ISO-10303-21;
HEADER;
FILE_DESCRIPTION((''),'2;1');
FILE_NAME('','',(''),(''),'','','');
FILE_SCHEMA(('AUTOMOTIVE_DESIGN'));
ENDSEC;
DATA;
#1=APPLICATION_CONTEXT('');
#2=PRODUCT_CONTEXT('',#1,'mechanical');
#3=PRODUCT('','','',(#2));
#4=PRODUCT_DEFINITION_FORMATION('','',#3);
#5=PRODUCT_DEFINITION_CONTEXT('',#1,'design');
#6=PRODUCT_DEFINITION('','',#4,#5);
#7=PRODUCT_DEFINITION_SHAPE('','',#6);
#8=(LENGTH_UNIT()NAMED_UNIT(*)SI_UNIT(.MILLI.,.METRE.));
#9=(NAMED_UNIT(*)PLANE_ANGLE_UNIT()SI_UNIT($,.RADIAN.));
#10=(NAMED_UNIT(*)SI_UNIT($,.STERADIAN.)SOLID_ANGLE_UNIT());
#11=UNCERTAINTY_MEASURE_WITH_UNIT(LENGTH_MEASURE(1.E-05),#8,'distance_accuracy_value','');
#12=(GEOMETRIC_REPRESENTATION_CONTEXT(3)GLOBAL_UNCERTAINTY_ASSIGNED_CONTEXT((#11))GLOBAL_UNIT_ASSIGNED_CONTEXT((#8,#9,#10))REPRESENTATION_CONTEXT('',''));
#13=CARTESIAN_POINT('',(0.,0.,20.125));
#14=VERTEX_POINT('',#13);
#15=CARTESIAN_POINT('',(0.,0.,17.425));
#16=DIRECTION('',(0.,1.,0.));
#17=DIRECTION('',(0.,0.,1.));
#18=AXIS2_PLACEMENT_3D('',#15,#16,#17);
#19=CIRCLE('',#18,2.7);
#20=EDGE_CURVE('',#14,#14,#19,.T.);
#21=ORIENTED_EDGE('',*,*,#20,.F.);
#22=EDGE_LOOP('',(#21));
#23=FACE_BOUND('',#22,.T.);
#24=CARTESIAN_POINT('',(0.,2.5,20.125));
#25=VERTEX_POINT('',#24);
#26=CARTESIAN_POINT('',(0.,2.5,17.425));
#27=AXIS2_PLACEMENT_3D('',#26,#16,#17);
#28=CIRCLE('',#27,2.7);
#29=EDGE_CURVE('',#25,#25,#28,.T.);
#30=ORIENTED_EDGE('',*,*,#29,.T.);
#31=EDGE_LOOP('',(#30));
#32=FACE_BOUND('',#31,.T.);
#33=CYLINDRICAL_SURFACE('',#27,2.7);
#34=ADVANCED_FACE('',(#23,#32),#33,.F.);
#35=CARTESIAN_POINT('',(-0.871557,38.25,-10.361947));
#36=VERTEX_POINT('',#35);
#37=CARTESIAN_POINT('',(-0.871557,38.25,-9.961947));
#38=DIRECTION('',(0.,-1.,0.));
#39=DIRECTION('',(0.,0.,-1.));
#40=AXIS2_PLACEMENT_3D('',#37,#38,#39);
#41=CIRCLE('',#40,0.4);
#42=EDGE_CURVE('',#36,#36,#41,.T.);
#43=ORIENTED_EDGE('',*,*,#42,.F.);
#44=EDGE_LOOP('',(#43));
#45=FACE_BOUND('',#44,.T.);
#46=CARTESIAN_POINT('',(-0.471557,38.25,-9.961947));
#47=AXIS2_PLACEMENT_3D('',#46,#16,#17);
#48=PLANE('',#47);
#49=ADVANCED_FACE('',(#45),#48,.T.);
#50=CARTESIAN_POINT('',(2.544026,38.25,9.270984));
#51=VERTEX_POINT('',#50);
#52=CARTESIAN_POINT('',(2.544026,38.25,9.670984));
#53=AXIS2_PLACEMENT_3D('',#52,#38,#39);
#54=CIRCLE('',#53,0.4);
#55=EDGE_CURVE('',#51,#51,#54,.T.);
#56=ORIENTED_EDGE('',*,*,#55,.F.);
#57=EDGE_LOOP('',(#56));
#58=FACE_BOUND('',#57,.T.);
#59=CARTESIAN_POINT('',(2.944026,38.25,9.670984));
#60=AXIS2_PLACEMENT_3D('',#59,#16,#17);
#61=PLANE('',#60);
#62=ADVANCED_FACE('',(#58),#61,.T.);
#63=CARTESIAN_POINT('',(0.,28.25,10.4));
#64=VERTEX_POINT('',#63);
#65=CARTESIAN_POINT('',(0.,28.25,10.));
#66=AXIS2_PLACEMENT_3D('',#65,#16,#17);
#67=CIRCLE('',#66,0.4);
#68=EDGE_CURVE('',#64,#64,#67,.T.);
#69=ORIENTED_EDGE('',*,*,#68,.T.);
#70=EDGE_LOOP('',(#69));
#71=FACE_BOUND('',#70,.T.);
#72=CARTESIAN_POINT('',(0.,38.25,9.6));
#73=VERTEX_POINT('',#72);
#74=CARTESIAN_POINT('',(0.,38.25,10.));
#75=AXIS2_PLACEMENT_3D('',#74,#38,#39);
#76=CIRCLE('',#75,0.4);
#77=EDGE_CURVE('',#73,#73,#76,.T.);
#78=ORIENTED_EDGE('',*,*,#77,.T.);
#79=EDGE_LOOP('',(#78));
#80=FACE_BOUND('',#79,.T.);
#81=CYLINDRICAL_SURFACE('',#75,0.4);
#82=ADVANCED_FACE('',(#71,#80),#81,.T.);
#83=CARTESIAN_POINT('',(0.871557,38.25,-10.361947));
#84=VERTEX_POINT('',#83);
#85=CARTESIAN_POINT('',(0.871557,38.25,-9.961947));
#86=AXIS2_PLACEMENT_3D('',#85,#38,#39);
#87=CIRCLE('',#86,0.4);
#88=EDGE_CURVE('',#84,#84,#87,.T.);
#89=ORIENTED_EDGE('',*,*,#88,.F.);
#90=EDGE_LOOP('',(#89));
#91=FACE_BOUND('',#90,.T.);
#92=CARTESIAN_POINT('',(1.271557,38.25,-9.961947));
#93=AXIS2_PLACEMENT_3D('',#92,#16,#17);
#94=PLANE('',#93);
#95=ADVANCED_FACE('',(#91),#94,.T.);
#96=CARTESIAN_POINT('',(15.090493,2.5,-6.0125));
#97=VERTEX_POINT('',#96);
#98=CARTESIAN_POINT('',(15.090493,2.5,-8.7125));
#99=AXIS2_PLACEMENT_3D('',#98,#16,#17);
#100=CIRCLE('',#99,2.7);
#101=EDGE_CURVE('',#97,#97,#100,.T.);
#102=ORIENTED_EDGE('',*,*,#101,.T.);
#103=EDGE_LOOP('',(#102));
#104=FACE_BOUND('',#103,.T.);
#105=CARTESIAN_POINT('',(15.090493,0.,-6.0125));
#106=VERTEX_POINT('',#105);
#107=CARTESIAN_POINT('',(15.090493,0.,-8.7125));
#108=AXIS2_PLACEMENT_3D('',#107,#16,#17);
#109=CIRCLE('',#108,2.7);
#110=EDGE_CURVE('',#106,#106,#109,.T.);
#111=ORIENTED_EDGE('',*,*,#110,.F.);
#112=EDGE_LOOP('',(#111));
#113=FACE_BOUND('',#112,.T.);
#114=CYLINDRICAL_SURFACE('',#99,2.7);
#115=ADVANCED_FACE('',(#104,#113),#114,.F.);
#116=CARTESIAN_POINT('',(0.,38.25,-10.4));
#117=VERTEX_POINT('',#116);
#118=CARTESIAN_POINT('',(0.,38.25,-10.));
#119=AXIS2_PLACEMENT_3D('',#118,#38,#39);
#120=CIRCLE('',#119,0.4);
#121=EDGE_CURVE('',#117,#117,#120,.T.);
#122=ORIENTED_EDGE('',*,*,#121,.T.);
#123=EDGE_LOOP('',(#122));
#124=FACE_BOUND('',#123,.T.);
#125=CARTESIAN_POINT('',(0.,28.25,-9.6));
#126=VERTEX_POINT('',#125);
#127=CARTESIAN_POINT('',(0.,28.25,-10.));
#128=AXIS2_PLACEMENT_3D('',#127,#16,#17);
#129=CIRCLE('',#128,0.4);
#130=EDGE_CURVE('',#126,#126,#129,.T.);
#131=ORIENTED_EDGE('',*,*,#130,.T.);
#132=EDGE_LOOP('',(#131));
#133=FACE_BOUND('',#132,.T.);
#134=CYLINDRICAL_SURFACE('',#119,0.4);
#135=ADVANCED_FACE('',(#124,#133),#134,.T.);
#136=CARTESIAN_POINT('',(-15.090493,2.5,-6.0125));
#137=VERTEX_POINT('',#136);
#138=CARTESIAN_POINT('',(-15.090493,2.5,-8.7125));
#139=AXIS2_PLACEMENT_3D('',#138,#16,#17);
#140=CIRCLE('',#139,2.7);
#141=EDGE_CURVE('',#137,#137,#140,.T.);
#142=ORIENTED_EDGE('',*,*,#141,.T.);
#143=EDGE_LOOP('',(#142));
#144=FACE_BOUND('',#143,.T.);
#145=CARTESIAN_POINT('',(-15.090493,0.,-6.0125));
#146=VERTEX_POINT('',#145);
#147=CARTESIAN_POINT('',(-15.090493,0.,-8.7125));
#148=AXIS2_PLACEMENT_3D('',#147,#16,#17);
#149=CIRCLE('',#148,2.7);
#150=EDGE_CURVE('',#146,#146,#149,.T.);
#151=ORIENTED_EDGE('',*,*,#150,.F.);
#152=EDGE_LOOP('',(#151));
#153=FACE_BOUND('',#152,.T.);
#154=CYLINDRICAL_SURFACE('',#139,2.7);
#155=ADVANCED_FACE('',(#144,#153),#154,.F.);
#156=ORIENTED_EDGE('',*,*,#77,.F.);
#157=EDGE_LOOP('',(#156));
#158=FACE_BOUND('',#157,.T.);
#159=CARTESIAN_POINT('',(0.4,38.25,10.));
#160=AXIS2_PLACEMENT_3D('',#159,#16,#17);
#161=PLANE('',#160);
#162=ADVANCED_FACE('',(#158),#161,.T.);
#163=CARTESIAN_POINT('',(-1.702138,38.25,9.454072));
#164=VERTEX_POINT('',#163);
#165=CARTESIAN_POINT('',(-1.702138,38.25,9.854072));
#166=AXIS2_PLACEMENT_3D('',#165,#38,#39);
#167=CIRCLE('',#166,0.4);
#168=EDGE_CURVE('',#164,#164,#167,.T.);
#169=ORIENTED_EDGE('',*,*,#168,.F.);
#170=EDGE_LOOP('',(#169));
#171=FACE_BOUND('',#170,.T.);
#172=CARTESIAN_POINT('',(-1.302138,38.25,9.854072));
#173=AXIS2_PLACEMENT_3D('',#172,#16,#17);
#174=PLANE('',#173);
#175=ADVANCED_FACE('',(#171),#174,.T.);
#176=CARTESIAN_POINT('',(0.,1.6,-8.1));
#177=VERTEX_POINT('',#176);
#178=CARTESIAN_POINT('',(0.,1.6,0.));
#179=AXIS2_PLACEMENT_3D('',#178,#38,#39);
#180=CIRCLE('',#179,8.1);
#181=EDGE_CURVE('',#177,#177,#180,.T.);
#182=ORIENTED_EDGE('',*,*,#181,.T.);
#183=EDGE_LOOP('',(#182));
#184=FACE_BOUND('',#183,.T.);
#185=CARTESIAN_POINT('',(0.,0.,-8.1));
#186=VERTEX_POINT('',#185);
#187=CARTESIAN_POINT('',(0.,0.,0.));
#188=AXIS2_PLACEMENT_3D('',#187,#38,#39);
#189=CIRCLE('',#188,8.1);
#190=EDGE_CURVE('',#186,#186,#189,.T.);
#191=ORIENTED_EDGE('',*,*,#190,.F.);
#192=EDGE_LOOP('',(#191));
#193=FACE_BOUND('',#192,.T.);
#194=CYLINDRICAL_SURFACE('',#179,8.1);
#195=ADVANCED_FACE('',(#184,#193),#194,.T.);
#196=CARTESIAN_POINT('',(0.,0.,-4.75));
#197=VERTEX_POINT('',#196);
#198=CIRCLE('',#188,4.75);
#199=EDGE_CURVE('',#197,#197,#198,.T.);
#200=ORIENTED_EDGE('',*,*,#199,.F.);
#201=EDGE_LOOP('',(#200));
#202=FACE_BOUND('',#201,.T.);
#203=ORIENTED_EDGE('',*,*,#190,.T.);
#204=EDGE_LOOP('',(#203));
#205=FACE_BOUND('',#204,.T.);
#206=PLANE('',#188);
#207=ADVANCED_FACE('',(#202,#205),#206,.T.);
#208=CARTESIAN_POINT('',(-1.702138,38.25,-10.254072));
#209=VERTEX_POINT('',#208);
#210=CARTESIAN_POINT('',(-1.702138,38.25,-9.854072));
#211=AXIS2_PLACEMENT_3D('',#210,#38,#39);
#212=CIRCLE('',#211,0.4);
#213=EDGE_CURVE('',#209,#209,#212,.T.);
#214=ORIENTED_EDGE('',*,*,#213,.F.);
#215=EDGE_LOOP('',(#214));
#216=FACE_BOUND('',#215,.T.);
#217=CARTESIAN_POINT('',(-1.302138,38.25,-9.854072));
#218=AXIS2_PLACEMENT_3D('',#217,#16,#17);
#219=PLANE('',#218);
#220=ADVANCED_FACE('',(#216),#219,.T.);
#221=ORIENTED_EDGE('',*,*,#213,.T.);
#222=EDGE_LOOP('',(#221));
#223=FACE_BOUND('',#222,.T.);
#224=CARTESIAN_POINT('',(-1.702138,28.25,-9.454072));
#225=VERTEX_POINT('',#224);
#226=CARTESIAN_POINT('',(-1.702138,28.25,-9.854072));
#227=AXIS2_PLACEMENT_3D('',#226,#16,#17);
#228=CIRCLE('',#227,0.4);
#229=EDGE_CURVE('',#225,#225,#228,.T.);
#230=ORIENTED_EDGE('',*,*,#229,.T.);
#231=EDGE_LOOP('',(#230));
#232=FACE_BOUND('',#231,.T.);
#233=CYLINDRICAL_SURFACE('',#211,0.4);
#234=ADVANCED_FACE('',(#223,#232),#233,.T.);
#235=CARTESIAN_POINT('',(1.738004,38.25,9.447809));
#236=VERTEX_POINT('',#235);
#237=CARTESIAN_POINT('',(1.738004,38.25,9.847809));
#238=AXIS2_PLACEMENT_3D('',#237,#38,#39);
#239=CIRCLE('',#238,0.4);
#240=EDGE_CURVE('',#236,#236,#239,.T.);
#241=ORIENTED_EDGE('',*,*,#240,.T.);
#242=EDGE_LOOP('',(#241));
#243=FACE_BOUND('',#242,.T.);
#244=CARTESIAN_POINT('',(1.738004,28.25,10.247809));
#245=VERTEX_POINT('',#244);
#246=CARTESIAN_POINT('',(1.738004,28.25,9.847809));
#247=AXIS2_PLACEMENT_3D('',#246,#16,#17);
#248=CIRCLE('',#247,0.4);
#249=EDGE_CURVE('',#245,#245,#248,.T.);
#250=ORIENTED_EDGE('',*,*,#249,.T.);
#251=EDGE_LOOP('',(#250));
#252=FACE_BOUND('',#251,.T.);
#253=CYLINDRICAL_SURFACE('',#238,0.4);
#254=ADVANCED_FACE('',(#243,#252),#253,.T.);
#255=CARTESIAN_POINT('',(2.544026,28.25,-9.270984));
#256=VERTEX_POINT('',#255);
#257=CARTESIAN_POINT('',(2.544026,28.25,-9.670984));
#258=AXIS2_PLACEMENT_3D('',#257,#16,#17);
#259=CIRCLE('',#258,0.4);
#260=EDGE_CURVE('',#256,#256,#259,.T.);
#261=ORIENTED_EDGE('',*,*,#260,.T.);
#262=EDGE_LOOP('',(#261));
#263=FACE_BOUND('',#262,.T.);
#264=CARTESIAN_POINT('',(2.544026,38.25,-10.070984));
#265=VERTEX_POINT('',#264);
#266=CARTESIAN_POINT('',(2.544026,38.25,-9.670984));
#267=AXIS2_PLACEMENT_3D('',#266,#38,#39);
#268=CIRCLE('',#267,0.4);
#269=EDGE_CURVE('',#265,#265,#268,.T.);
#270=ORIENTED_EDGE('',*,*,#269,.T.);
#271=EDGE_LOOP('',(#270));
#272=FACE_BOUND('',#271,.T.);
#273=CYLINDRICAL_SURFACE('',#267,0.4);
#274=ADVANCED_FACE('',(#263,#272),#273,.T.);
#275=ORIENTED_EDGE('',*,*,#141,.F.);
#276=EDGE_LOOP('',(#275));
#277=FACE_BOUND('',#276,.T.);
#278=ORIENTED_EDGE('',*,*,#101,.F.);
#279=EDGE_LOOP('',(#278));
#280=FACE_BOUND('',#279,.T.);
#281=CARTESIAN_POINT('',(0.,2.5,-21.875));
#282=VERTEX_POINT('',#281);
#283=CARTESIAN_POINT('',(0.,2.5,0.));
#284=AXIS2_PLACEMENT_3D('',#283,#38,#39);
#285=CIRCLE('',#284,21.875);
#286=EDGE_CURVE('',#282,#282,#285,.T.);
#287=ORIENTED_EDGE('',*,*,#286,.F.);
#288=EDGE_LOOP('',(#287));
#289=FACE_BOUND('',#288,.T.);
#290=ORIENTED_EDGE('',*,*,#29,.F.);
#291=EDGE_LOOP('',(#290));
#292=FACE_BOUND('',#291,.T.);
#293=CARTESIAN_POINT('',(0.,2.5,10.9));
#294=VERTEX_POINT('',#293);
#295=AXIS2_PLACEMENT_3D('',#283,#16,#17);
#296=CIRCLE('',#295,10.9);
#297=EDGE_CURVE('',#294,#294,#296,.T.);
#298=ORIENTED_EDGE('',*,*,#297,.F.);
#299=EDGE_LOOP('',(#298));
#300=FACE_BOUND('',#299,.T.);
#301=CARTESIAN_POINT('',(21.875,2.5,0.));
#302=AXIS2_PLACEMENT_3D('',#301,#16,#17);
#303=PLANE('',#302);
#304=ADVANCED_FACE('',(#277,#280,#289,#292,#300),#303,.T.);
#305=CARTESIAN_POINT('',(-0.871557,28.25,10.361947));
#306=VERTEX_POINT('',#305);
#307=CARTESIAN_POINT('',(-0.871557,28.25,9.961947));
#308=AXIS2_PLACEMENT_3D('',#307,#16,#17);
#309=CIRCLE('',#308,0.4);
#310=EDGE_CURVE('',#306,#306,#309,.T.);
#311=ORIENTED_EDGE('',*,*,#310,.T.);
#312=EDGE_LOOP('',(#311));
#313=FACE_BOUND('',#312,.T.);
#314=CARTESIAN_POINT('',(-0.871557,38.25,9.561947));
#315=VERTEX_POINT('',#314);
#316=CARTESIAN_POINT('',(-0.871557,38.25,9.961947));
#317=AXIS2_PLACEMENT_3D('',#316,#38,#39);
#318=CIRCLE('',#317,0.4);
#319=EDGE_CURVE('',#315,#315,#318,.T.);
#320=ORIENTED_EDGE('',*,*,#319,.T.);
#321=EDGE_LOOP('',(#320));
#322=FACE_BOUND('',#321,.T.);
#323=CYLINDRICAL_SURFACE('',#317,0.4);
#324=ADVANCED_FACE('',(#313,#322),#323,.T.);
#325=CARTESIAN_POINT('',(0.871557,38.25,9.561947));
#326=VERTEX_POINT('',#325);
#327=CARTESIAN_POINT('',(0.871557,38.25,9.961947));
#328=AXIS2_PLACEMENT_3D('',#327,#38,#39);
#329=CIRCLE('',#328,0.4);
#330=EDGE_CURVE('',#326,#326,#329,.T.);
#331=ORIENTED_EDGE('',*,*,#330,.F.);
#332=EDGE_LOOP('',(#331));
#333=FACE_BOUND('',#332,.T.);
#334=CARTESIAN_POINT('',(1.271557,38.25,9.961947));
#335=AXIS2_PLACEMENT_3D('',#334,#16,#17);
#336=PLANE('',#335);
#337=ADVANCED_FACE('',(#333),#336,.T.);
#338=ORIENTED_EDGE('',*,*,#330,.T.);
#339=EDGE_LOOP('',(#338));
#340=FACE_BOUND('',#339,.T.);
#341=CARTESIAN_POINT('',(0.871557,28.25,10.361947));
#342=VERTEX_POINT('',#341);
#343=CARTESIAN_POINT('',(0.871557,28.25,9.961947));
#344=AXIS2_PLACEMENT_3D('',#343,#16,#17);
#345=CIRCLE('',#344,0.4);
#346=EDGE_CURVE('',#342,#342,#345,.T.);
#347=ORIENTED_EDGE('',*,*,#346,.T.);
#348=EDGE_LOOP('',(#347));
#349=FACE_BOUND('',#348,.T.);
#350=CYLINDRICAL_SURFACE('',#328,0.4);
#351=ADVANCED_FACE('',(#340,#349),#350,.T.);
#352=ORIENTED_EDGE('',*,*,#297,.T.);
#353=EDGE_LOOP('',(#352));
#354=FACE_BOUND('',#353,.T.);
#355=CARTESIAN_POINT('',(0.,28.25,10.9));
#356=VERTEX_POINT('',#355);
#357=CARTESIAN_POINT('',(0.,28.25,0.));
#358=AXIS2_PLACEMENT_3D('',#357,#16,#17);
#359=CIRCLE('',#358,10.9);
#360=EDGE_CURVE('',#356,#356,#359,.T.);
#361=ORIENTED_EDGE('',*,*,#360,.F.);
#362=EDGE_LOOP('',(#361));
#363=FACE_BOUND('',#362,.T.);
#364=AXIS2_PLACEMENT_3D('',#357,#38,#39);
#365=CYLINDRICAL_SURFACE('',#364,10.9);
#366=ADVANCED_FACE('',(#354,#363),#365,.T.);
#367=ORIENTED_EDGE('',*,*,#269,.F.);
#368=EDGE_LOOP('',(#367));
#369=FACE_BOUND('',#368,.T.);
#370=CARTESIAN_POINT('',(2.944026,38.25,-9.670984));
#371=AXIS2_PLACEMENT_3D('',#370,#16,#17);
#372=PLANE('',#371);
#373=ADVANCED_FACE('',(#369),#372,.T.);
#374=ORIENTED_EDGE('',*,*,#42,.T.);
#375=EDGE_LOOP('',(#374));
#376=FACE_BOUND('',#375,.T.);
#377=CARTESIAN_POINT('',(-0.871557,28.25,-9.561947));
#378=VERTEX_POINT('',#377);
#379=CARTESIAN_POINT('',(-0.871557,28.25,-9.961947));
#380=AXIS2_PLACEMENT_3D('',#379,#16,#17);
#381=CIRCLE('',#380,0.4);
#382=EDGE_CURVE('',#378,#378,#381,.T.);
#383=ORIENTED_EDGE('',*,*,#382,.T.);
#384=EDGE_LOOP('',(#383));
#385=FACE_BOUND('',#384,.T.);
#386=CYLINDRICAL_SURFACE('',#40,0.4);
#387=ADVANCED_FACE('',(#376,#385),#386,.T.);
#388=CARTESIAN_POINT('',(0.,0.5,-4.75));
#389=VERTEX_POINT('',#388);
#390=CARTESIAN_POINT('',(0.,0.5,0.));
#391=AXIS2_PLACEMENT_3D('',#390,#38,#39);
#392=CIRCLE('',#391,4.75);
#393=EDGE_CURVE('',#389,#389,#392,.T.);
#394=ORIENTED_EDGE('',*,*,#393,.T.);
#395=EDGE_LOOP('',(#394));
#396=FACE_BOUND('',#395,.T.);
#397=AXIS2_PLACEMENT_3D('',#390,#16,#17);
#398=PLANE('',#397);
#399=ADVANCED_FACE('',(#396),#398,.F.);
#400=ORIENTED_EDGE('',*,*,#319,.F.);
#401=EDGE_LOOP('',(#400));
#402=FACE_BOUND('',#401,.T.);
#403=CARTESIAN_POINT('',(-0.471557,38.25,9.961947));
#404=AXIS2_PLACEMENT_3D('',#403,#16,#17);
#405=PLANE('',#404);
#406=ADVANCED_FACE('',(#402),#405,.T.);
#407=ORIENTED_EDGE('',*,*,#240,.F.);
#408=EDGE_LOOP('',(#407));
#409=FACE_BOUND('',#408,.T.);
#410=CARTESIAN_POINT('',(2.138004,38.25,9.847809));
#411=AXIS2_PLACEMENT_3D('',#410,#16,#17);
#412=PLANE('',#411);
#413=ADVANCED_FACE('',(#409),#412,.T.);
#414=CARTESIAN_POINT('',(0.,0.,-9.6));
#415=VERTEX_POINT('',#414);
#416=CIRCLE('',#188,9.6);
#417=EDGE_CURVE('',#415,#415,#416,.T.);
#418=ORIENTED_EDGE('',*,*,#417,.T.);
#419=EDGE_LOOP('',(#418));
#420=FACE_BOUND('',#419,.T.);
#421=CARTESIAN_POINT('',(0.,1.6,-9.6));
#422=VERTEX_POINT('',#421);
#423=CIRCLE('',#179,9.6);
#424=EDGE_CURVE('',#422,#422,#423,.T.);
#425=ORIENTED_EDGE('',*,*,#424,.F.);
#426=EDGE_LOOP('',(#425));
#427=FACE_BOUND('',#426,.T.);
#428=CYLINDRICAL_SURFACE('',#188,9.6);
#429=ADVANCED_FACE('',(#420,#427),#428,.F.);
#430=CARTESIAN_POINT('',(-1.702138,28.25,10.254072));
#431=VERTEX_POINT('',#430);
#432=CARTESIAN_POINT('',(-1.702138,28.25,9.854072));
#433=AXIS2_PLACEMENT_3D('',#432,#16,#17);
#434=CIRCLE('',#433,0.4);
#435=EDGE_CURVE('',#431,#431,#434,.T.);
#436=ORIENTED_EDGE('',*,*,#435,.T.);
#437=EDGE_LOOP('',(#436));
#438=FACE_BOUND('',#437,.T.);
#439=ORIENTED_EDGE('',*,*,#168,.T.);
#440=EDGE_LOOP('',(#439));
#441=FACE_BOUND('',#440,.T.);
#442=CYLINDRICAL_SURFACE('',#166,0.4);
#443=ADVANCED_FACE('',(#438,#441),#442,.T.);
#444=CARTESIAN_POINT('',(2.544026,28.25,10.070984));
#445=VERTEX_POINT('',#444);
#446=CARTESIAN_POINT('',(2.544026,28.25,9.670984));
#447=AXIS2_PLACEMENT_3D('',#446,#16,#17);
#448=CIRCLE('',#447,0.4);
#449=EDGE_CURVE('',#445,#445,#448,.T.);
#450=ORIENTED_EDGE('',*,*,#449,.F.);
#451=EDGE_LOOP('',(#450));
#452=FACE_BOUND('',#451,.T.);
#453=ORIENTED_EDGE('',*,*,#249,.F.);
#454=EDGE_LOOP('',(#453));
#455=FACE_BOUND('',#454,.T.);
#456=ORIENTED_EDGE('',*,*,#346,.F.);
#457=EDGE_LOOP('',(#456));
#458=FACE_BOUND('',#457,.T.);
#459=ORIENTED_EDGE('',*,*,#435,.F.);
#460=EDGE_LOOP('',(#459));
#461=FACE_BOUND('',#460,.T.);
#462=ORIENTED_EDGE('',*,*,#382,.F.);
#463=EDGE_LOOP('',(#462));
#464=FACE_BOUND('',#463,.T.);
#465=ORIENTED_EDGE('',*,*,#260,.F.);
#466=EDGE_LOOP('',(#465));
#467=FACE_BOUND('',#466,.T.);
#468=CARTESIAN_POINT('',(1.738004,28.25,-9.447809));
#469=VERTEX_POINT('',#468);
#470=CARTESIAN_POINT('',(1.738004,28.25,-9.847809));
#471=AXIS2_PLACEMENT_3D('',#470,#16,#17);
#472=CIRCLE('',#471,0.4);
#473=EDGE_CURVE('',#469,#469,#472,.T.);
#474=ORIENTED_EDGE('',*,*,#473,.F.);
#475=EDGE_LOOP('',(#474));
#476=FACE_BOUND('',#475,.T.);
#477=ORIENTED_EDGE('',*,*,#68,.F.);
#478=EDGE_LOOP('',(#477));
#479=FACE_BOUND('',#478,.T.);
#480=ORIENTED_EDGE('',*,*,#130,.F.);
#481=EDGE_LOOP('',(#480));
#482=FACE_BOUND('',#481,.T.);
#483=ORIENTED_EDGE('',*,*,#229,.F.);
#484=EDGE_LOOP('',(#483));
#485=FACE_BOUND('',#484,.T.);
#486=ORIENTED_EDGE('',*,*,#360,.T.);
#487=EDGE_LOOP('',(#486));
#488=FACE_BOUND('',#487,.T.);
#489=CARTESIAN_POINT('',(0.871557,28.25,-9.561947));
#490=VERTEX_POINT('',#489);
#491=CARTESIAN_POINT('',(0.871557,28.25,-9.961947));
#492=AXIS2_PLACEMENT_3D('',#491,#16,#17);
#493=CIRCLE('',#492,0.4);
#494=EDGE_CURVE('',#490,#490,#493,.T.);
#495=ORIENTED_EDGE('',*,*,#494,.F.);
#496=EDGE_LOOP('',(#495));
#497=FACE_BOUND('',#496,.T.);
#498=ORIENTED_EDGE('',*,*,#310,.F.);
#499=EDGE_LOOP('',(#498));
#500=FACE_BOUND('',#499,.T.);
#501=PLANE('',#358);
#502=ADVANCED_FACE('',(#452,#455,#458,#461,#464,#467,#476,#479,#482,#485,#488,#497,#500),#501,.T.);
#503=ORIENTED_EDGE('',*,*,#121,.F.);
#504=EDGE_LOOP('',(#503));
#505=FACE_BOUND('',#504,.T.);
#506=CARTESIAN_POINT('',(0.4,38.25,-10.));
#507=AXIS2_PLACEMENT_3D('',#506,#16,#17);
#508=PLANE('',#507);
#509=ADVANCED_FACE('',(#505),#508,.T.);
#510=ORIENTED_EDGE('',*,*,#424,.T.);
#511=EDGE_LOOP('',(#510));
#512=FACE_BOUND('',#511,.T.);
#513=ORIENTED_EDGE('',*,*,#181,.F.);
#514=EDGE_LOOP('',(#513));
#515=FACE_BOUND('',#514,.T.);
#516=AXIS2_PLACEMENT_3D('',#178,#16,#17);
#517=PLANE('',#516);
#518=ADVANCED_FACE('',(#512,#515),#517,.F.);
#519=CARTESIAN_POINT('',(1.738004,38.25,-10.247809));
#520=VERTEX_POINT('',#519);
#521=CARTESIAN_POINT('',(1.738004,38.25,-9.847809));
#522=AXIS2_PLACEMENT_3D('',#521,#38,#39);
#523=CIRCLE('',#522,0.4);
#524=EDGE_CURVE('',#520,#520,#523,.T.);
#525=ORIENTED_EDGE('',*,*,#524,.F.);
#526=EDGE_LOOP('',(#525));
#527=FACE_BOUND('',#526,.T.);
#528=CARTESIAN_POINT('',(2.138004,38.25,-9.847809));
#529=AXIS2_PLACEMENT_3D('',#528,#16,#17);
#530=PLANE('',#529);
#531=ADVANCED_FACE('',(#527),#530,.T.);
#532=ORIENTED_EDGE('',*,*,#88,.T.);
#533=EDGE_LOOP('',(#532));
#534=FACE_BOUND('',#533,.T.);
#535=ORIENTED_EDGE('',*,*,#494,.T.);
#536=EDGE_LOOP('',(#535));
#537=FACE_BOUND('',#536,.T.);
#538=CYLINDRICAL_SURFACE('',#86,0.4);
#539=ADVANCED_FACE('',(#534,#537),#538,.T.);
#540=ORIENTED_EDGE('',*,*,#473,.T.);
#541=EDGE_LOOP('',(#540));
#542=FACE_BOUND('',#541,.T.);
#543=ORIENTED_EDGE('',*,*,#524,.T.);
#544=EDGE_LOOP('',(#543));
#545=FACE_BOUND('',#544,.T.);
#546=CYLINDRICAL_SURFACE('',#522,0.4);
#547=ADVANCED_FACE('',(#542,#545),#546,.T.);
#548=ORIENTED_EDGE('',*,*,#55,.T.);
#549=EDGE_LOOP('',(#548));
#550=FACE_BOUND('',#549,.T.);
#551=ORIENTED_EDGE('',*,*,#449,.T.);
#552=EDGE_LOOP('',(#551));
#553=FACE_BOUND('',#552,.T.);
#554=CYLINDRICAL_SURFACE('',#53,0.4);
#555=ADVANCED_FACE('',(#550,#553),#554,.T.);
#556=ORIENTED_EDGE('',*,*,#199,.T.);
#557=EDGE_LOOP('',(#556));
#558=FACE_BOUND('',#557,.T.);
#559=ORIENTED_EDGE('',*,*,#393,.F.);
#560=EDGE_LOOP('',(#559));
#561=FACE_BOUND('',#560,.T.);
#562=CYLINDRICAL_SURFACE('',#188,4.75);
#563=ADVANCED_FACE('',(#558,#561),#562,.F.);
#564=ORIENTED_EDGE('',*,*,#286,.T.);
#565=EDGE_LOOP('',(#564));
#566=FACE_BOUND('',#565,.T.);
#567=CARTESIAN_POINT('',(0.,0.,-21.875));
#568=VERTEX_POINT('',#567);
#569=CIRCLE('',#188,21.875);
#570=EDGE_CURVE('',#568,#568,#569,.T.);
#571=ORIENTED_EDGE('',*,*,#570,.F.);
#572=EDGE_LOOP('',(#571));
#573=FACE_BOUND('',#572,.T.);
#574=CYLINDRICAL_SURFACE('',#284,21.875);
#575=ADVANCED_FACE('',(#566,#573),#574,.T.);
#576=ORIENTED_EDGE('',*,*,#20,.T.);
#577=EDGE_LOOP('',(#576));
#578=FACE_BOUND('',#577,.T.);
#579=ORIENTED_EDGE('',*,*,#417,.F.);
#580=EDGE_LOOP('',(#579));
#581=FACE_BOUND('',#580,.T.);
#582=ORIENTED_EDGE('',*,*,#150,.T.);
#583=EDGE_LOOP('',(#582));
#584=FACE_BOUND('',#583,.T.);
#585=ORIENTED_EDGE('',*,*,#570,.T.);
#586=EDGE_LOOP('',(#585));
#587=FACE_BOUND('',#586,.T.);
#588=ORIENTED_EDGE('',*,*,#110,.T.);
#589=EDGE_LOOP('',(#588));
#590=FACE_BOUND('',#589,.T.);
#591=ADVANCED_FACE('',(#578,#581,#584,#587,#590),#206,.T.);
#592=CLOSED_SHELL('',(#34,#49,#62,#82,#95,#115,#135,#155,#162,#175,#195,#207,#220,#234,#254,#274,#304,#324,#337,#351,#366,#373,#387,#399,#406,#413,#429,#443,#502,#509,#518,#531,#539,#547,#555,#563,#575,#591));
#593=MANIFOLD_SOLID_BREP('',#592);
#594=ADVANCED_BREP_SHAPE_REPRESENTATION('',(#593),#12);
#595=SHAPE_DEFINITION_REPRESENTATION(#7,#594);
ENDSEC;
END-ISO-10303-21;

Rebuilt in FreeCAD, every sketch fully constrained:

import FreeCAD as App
import Part
import Sketcher

V = App.Vector
Q = App.Units.Quantity

doc = App.newDocument("Part")
body = doc.addObject("PartDesign::Body", "Body")

sketch1 = body.newObject("Sketcher::SketchObject", "Sketch")
sketch1.AttachmentSupport = (doc.getObject("XY_Plane"), [""])
sketch1.MapMode = "FlatFace"
sketch1.addGeometry([
    Part.LineSegment(V(0, 2.5, 0), V(0, 0, 0)),
    Part.LineSegment(V(0, 0, 0), V(21.9, 0, 0)),
    Part.LineSegment(V(21.9, 0, 0), V(21.9, 2.5, 0)),
    Part.LineSegment(V(21.9, 2.5, 0), V(0, 2.5, 0)),
], False)
sketch1.addConstraint([
    Sketcher.Constraint("Coincident", 0, 2, 1, 1),
    Sketcher.Constraint("Coincident", 1, 2, 2, 1),
    Sketcher.Constraint("Coincident", 2, 2, 3, 1),
    Sketcher.Constraint("Coincident", 3, 2, 0, 1),
    Sketcher.Constraint("Vertical", 0),
    Sketcher.Constraint("Horizontal", 1),
    Sketcher.Constraint("Vertical", 2),
    Sketcher.Constraint("Horizontal", 3),
    Sketcher.Constraint("Coincident", 0, 2, -1, 1),
    Sketcher.Constraint("DistanceY", 0, 2, 0, 1, Q("2.5 mm")),
    Sketcher.Constraint("DistanceX", 1, 1, 1, 2, Q("21.875 mm")),
])
revolution = body.newObject("PartDesign::Revolution", "Revolution")
revolution.Profile = sketch1
revolution.ReferenceAxis = (sketch1, ["V_Axis"])
revolution.Angle = 360

sketch2 = body.newObject("Sketcher::SketchObject", "Sketch001")
sketch2.AttachmentSupport = (doc.getObject("XZ_Plane"), [""])
sketch2.MapMode = "FlatFace"
sketch2.AttachmentOffset = App.Placement(V(0, 0, -2.5), App.Rotation())
sketch2.addGeometry(Part.Circle(V(0, 0, 0), V(0, 0, 1), 11), False)
sketch2.addConstraint([
    Sketcher.Constraint("Coincident", 0, 3, -1, 1),
    Sketcher.Constraint("Diameter", 0, Q("21.8 mm")),
])
pad1 = body.newObject("PartDesign::Pad", "Pad")
pad1.Profile = sketch2
pad1.Length = 25.75
pad1.Reversed = True

sketch3 = body.newObject("Sketcher::SketchObject", "Sketch002")
sketch3.AttachmentSupport = (doc.getObject("XZ_Plane"), [""])
sketch3.MapMode = "FlatFace"
sketch3.addGeometry(Part.Circle(V(0, 0, 0), V(0, 0, 1), 10), False)
sketch3.addConstraint([
    Sketcher.Constraint("Coincident", 0, 3, -1, 1),
    Sketcher.Constraint("Diameter", 0, Q("19.2 mm")),
])
doc.recompute()
hole = body.newObject("PartDesign::Hole", "Hole")
hole.Profile = sketch3
hole.ThreadType = "None"
hole.Diameter = 19.2
hole.DepthType = "Dimension"
hole.Depth = 1.6
hole.DrillPoint = "Flat"

sketch4 = body.newObject("Sketcher::SketchObject", "Sketch003")
sketch4.AttachmentSupport = (doc.getObject("XY_Plane"), [""])
sketch4.MapMode = "FlatFace"
sketch4.addGeometry([
    Part.LineSegment(V(0, 1.6, 0), V(0, 0, 0)),
    Part.LineSegment(V(0, 0, 0), V(8.1, 0, 0)),
    Part.LineSegment(V(8.1, 0, 0), V(8.1, 1.6, 0)),
    Part.LineSegment(V(8.1, 1.6, 0), V(0, 1.6, 0)),
], False)
sketch4.addConstraint([
    Sketcher.Constraint("Coincident", 0, 2, 1, 1),
    Sketcher.Constraint("Coincident", 1, 2, 2, 1),
    Sketcher.Constraint("Coincident", 2, 2, 3, 1),
    Sketcher.Constraint("Coincident", 3, 2, 0, 1),
    Sketcher.Constraint("Vertical", 0),
    Sketcher.Constraint("Horizontal", 1),
    Sketcher.Constraint("Vertical", 2),
    Sketcher.Constraint("Horizontal", 3),
    Sketcher.Constraint("Coincident", 0, 2, -1, 1),
    Sketcher.Constraint("DistanceX", 1, 1, 1, 2, Q("8.1 mm")),
    Sketcher.Constraint("DistanceY", 0, 2, 0, 1, Q("1.6 mm")),
])
revolution2 = body.newObject("PartDesign::Revolution", "Revolution001")
revolution2.Profile = sketch4
revolution2.ReferenceAxis = (sketch4, ["V_Axis"])
revolution2.Angle = 360

sketch5 = body.newObject("Sketcher::SketchObject", "Sketch004")
sketch5.AttachmentSupport = (doc.getObject("XY_Plane"), [""])
sketch5.MapMode = "FlatFace"
sketch5.AttachmentOffset = App.Placement(V(0, 0, 9.847809), App.Rotation())
sketch5.addGeometry([
    Part.LineSegment(V(1.74, 38.25, 0), V(1.74, 28.25, 0)),
    Part.LineSegment(V(1.74, 28.25, 0), V(2.14, 28.25, 0)),
    Part.LineSegment(V(2.14, 28.25, 0), V(2.14, 38.25, 0)),
    Part.LineSegment(V(2.14, 38.25, 0), V(1.74, 38.25, 0)),
], False)
sketch5.addGeometry(Part.LineSegment(V(1.74, 38.25, 0), V(1.74, 28.25, 0)), True)
sketch5.addConstraint([
    Sketcher.Constraint("Coincident", 0, 2, 1, 1),
    Sketcher.Constraint("Coincident", 1, 2, 2, 1),
    Sketcher.Constraint("Coincident", 2, 2, 3, 1),
    Sketcher.Constraint("Coincident", 3, 2, 0, 1),
    Sketcher.Constraint("Vertical", 0),
    Sketcher.Constraint("Horizontal", 1),
    Sketcher.Constraint("Vertical", 2),
    Sketcher.Constraint("Horizontal", 3),
    Sketcher.Constraint("Vertical", 4),
    Sketcher.Constraint("Coincident", 4, 1, 3, 2),
    Sketcher.Constraint("Horizontal", 1, 2, 4, 2),
    Sketcher.Constraint("DistanceY", 0, 2, 0, 1, Q("10 mm")),
    Sketcher.Constraint("DistanceX", 1, 1, 1, 2, Q("0.4 mm")),
    Sketcher.Constraint("DistanceY", -1, 1, 0, 2, Q("28.25 mm")),
    Sketcher.Constraint("DistanceX", -1, 1, 0, 2, Q("1.738004 mm")),
])
revolution3 = body.newObject("PartDesign::Revolution", "Revolution002")
revolution3.Profile = sketch5
revolution3.ReferenceAxis = (sketch5, ["Axis0"])
revolution3.Angle = 360

sketch6 = body.newObject("Sketcher::SketchObject", "Sketch005")
sketch6.AttachmentSupport = (doc.getObject("XY_Plane"), [""])
sketch6.MapMode = "FlatFace"
sketch6.AttachmentOffset = App.Placement(V(0, 0, 9.854072), App.Rotation())
sketch6.addGeometry([
    Part.LineSegment(V(-1.7, 38.25, 0), V(-1.7, 28.25, 0)),
    Part.LineSegment(V(-1.7, 28.25, 0), V(-1.3, 28.25, 0)),
    Part.LineSegment(V(-1.3, 28.25, 0), V(-1.3, 38.25, 0)),
    Part.LineSegment(V(-1.3, 38.25, 0), V(-1.7, 38.25, 0)),
], False)
sketch6.addGeometry(Part.LineSegment(V(-1.7, 38.25, 0), V(-1.7, 28.25, 0)), True)
sketch6.addConstraint([
    Sketcher.Constraint("Coincident", 0, 2, 1, 1),
    Sketcher.Constraint("Coincident", 1, 2, 2, 1),
    Sketcher.Constraint("Coincident", 2, 2, 3, 1),
    Sketcher.Constraint("Coincident", 3, 2, 0, 1),
    Sketcher.Constraint("Vertical", 0),
    Sketcher.Constraint("Horizontal", 1),
    Sketcher.Constraint("Vertical", 2),
    Sketcher.Constraint("Horizontal", 3),
    Sketcher.Constraint("Vertical", 4),
    Sketcher.Constraint("Coincident", 4, 1, 3, 2),
    Sketcher.Constraint("Horizontal", 1, 2, 4, 2),
    Sketcher.Constraint("DistanceY", 0, 2, 0, 1, Q("10 mm")),
    Sketcher.Constraint("DistanceX", 1, 1, 1, 2, Q("0.4 mm")),
    Sketcher.Constraint("DistanceY", -1, 1, 0, 2, Q("28.25 mm")),
    Sketcher.Constraint("DistanceX", 0, 2, -1, 1, Q("1.702138 mm")),
])
revolution4 = body.newObject("PartDesign::Revolution", "Revolution003")
revolution4.Profile = sketch6
revolution4.ReferenceAxis = (sketch6, ["Axis0"])
revolution4.Angle = 360

sketch7 = body.newObject("Sketcher::SketchObject", "Sketch006")
sketch7.AttachmentSupport = (doc.getObject("XY_Plane"), [""])
sketch7.MapMode = "FlatFace"
sketch7.AttachmentOffset = App.Placement(V(0, 0, 9.961947), App.Rotation())
sketch7.addGeometry([
    Part.LineSegment(V(-0.87, 38.25, 0), V(-0.87, 28.25, 0)),
    Part.LineSegment(V(-0.87, 28.25, 0), V(-0.47, 28.25, 0)),
    Part.LineSegment(V(-0.47, 28.25, 0), V(-0.47, 38.25, 0)),
    Part.LineSegment(V(-0.47, 38.25, 0), V(-0.87, 38.25, 0)),
], False)
sketch7.addGeometry(Part.LineSegment(V(-0.87, 38.25, 0), V(-0.87, 28.25, 0)), True)
sketch7.addConstraint([
    Sketcher.Constraint("Coincident", 0, 2, 1, 1),
    Sketcher.Constraint("Coincident", 1, 2, 2, 1),
    Sketcher.Constraint("Coincident", 2, 2, 3, 1),
    Sketcher.Constraint("Coincident", 3, 2, 0, 1),
    Sketcher.Constraint("Vertical", 0),
    Sketcher.Constraint("Horizontal", 1),
    Sketcher.Constraint("Vertical", 2),
    Sketcher.Constraint("Horizontal", 3),
    Sketcher.Constraint("Vertical", 4),
    Sketcher.Constraint("Coincident", 4, 1, 3, 2),
    Sketcher.Constraint("Horizontal", 1, 2, 4, 2),
    Sketcher.Constraint("DistanceY", 0, 2, 0, 1, Q("10 mm")),
    Sketcher.Constraint("DistanceX", 1, 1, 1, 2, Q("0.4 mm")),
    Sketcher.Constraint("DistanceY", -1, 1, 0, 2, Q("28.25 mm")),
    Sketcher.Constraint("DistanceX", 0, 2, -1, 1, Q("0.871557 mm")),
])
revolution5 = body.newObject("PartDesign::Revolution", "Revolution004")
revolution5.Profile = sketch7
revolution5.ReferenceAxis = (sketch7, ["Axis0"])
revolution5.Angle = 360

sketch8 = body.newObject("Sketcher::SketchObject", "Sketch007")
sketch8.AttachmentSupport = (doc.getObject("XY_Plane"), [""])
sketch8.MapMode = "FlatFace"
sketch8.AttachmentOffset = App.Placement(V(0, 0, 9.961947), App.Rotation())
sketch8.addGeometry([
    Part.LineSegment(V(0.87, 38.25, 0), V(0.87, 28.25, 0)),
    Part.LineSegment(V(0.87, 28.25, 0), V(1.27, 28.25, 0)),
    Part.LineSegment(V(1.27, 28.25, 0), V(1.27, 38.25, 0)),
    Part.LineSegment(V(1.27, 38.25, 0), V(0.87, 38.25, 0)),
], False)
sketch8.addGeometry(Part.LineSegment(V(0.87, 38.25, 0), V(0.87, 28.25, 0)), True)
sketch8.addConstraint([
    Sketcher.Constraint("Coincident", 0, 2, 1, 1),
    Sketcher.Constraint("Coincident", 1, 2, 2, 1),
    Sketcher.Constraint("Coincident", 2, 2, 3, 1),
    Sketcher.Constraint("Coincident", 3, 2, 0, 1),
    Sketcher.Constraint("Vertical", 0),
    Sketcher.Constraint("Horizontal", 1),
    Sketcher.Constraint("Vertical", 2),
    Sketcher.Constraint("Horizontal", 3),
    Sketcher.Constraint("Vertical", 4),
    Sketcher.Constraint("Coincident", 4, 1, 3, 2),
    Sketcher.Constraint("Horizontal", 1, 2, 4, 2),
    Sketcher.Constraint("DistanceY", 0, 2, 0, 1, Q("10 mm")),
    Sketcher.Constraint("DistanceX", 1, 1, 1, 2, Q("0.4 mm")),
    Sketcher.Constraint("DistanceY", -1, 1, 0, 2, Q("28.25 mm")),
    Sketcher.Constraint("DistanceX", -1, 1, 0, 2, Q("0.871557 mm")),
])
revolution6 = body.newObject("PartDesign::Revolution", "Revolution005")
revolution6.Profile = sketch8
revolution6.ReferenceAxis = (sketch8, ["Axis0"])
revolution6.Angle = 360

sketch9 = body.newObject("Sketcher::SketchObject", "Sketch008")
sketch9.AttachmentSupport = (doc.getObject("XY_Plane"), [""])
sketch9.MapMode = "FlatFace"
sketch9.AttachmentOffset = App.Placement(V(0, 0, 10), App.Rotation())
sketch9.addGeometry([
    Part.LineSegment(V(0, 38.25, 0), V(0, 28.25, 0)),
    Part.LineSegment(V(0, 28.25, 0), V(0.4, 28.25, 0)),
    Part.LineSegment(V(0.4, 28.25, 0), V(0.4, 38.25, 0)),
    Part.LineSegment(V(0.4, 38.25, 0), V(0, 38.25, 0)),
], False)
sketch9.addConstraint([
    Sketcher.Constraint("Coincident", 0, 2, 1, 1),
    Sketcher.Constraint("Coincident", 1, 2, 2, 1),
    Sketcher.Constraint("Coincident", 2, 2, 3, 1),
    Sketcher.Constraint("Coincident", 3, 2, 0, 1),
    Sketcher.Constraint("Vertical", 0),
    Sketcher.Constraint("Horizontal", 1),
    Sketcher.Constraint("Vertical", 2),
    Sketcher.Constraint("Horizontal", 3),
    Sketcher.Constraint("PointOnObject", 0, 2, -2),
    Sketcher.Constraint("DistanceY", 0, 2, 0, 1, Q("10 mm")),
    Sketcher.Constraint("DistanceX", 1, 1, 1, 2, Q("0.4 mm")),
    Sketcher.Constraint("DistanceY", -1, 1, 0, 2, Q("28.25 mm")),
])
revolution7 = body.newObject("PartDesign::Revolution", "Revolution006")
revolution7.Profile = sketch9
revolution7.ReferenceAxis = (sketch9, ["V_Axis"])
revolution7.Angle = 360

sketch10 = body.newObject("Sketcher::SketchObject", "Sketch009")
sketch10.AttachmentSupport = (doc.getObject("XY_Plane"), [""])
sketch10.MapMode = "FlatFace"
sketch10.AttachmentOffset = App.Placement(V(0, 0, -9.670984), App.Rotation())
sketch10.addGeometry([
    Part.LineSegment(V(2.54, 38.25, 0), V(2.54, 28.25, 0)),
    Part.LineSegment(V(2.54, 28.25, 0), V(2.94, 28.25, 0)),
    Part.LineSegment(V(2.94, 28.25, 0), V(2.94, 38.25, 0)),
    Part.LineSegment(V(2.94, 38.25, 0), V(2.54, 38.25, 0)),
], False)
sketch10.addGeometry(Part.LineSegment(V(2.54, 38.25, 0), V(2.54, 28.25, 0)), True)
sketch10.addConstraint([
    Sketcher.Constraint("Coincident", 0, 2, 1, 1),
    Sketcher.Constraint("Coincident", 1, 2, 2, 1),
    Sketcher.Constraint("Coincident", 2, 2, 3, 1),
    Sketcher.Constraint("Coincident", 3, 2, 0, 1),
    Sketcher.Constraint("Vertical", 0),
    Sketcher.Constraint("Horizontal", 1),
    Sketcher.Constraint("Vertical", 2),
    Sketcher.Constraint("Horizontal", 3),
    Sketcher.Constraint("Vertical", 4),
    Sketcher.Constraint("Coincident", 4, 1, 3, 2),
    Sketcher.Constraint("Horizontal", 1, 2, 4, 2),
    Sketcher.Constraint("DistanceY", 0, 2, 0, 1, Q("10 mm")),
    Sketcher.Constraint("DistanceX", 1, 1, 1, 2, Q("0.4 mm")),
    Sketcher.Constraint("DistanceY", -1, 1, 0, 2, Q("28.25 mm")),
    Sketcher.Constraint("DistanceX", -1, 1, 0, 2, Q("2.544026 mm")),
])
revolution8 = body.newObject("PartDesign::Revolution", "Revolution007")
revolution8.Profile = sketch10
revolution8.ReferenceAxis = (sketch10, ["Axis0"])
revolution8.Angle = 360

sketch11 = body.newObject("Sketcher::SketchObject", "Sketch010")
sketch11.AttachmentSupport = (doc.getObject("XY_Plane"), [""])
sketch11.MapMode = "FlatFace"
sketch11.AttachmentOffset = App.Placement(V(0, 0, -9.847809), App.Rotation())
sketch11.addGeometry([
    Part.LineSegment(V(1.74, 38.25, 0), V(1.74, 28.25, 0)),
    Part.LineSegment(V(1.74, 28.25, 0), V(2.14, 28.25, 0)),
    Part.LineSegment(V(2.14, 28.25, 0), V(2.14, 38.25, 0)),
    Part.LineSegment(V(2.14, 38.25, 0), V(1.74, 38.25, 0)),
], False)
sketch11.addGeometry(Part.LineSegment(V(1.74, 38.25, 0), V(1.74, 28.25, 0)), True)
sketch11.addConstraint([
    Sketcher.Constraint("Coincident", 0, 2, 1, 1),
    Sketcher.Constraint("Coincident", 1, 2, 2, 1),
    Sketcher.Constraint("Coincident", 2, 2, 3, 1),
    Sketcher.Constraint("Coincident", 3, 2, 0, 1),
    Sketcher.Constraint("Vertical", 0),
    Sketcher.Constraint("Horizontal", 1),
    Sketcher.Constraint("Vertical", 2),
    Sketcher.Constraint("Horizontal", 3),
    Sketcher.Constraint("Vertical", 4),
    Sketcher.Constraint("Coincident", 4, 1, 3, 2),
    Sketcher.Constraint("Horizontal", 1, 2, 4, 2),
    Sketcher.Constraint("DistanceY", 0, 2, 0, 1, Q("10 mm")),
    Sketcher.Constraint("DistanceX", 1, 1, 1, 2, Q("0.4 mm")),
    Sketcher.Constraint("DistanceY", -1, 1, 0, 2, Q("28.25 mm")),
    Sketcher.Constraint("DistanceX", -1, 1, 0, 2, Q("1.738004 mm")),
])
revolution9 = body.newObject("PartDesign::Revolution", "Revolution008")
revolution9.Profile = sketch11
revolution9.ReferenceAxis = (sketch11, ["Axis0"])
revolution9.Angle = 360

sketch12 = body.newObject("Sketcher::SketchObject", "Sketch011")
sketch12.AttachmentSupport = (doc.getObject("XY_Plane"), [""])
sketch12.MapMode = "FlatFace"
sketch12.AttachmentOffset = App.Placement(V(0, 0, -9.854072), App.Rotation())
sketch12.addGeometry([
    Part.LineSegment(V(-1.7, 38.25, 0), V(-1.7, 28.25, 0)),
    Part.LineSegment(V(-1.7, 28.25, 0), V(-1.3, 28.25, 0)),
    Part.LineSegment(V(-1.3, 28.25, 0), V(-1.3, 38.25, 0)),
    Part.LineSegment(V(-1.3, 38.25, 0), V(-1.7, 38.25, 0)),
], False)
sketch12.addGeometry(Part.LineSegment(V(-1.7, 38.25, 0), V(-1.7, 28.25, 0)), True)
sketch12.addConstraint([
    Sketcher.Constraint("Coincident", 0, 2, 1, 1),
    Sketcher.Constraint("Coincident", 1, 2, 2, 1),
    Sketcher.Constraint("Coincident", 2, 2, 3, 1),
    Sketcher.Constraint("Coincident", 3, 2, 0, 1),
    Sketcher.Constraint("Vertical", 0),
    Sketcher.Constraint("Horizontal", 1),
    Sketcher.Constraint("Vertical", 2),
    Sketcher.Constraint("Horizontal", 3),
    Sketcher.Constraint("Vertical", 4),
    Sketcher.Constraint("Coincident", 4, 1, 3, 2),
    Sketcher.Constraint("Horizontal", 1, 2, 4, 2),
    Sketcher.Constraint("DistanceY", 0, 2, 0, 1, Q("10 mm")),
    Sketcher.Constraint("DistanceX", 1, 1, 1, 2, Q("0.4 mm")),
    Sketcher.Constraint("DistanceY", -1, 1, 0, 2, Q("28.25 mm")),
    Sketcher.Constraint("DistanceX", 0, 2, -1, 1, Q("1.702138 mm")),
])
revolution10 = body.newObject("PartDesign::Revolution", "Revolution009")
revolution10.Profile = sketch12
revolution10.ReferenceAxis = (sketch12, ["Axis0"])
revolution10.Angle = 360

sketch13 = body.newObject("Sketcher::SketchObject", "Sketch012")
sketch13.AttachmentSupport = (doc.getObject("XY_Plane"), [""])
sketch13.MapMode = "FlatFace"
sketch13.AttachmentOffset = App.Placement(V(0, 0, -9.961947), App.Rotation())
sketch13.addGeometry([
    Part.LineSegment(V(-0.87, 38.25, 0), V(-0.87, 28.25, 0)),
    Part.LineSegment(V(-0.87, 28.25, 0), V(-0.47, 28.25, 0)),
    Part.LineSegment(V(-0.47, 28.25, 0), V(-0.47, 38.25, 0)),
    Part.LineSegment(V(-0.47, 38.25, 0), V(-0.87, 38.25, 0)),
], False)
sketch13.addGeometry(Part.LineSegment(V(-0.87, 38.25, 0), V(-0.87, 28.25, 0)), True)
sketch13.addConstraint([
    Sketcher.Constraint("Coincident", 0, 2, 1, 1),
    Sketcher.Constraint("Coincident", 1, 2, 2, 1),
    Sketcher.Constraint("Coincident", 2, 2, 3, 1),
    Sketcher.Constraint("Coincident", 3, 2, 0, 1),
    Sketcher.Constraint("Vertical", 0),
    Sketcher.Constraint("Horizontal", 1),
    Sketcher.Constraint("Vertical", 2),
    Sketcher.Constraint("Horizontal", 3),
    Sketcher.Constraint("Vertical", 4),
    Sketcher.Constraint("Coincident", 4, 1, 3, 2),
    Sketcher.Constraint("Horizontal", 1, 2, 4, 2),
    Sketcher.Constraint("DistanceY", 0, 2, 0, 1, Q("10 mm")),
    Sketcher.Constraint("DistanceX", 1, 1, 1, 2, Q("0.4 mm")),
    Sketcher.Constraint("DistanceY", -1, 1, 0, 2, Q("28.25 mm")),
    Sketcher.Constraint("DistanceX", 0, 2, -1, 1, Q("0.871557 mm")),
])
revolution11 = body.newObject("PartDesign::Revolution", "Revolution010")
revolution11.Profile = sketch13
revolution11.ReferenceAxis = (sketch13, ["Axis0"])
revolution11.Angle = 360

sketch14 = body.newObject("Sketcher::SketchObject", "Sketch013")
sketch14.AttachmentSupport = (doc.getObject("XY_Plane"), [""])
sketch14.MapMode = "FlatFace"
sketch14.AttachmentOffset = App.Placement(V(0, 0, -9.961947), App.Rotation())
sketch14.addGeometry([
    Part.LineSegment(V(0.87, 38.25, 0), V(0.87, 28.25, 0)),
    Part.LineSegment(V(0.87, 28.25, 0), V(1.27, 28.25, 0)),
    Part.LineSegment(V(1.27, 28.25, 0), V(1.27, 38.25, 0)),
    Part.LineSegment(V(1.27, 38.25, 0), V(0.87, 38.25, 0)),
], False)
sketch14.addGeometry(Part.LineSegment(V(0.87, 38.25, 0), V(0.87, 28.25, 0)), True)
sketch14.addConstraint([
    Sketcher.Constraint("Coincident", 0, 2, 1, 1),
    Sketcher.Constraint("Coincident", 1, 2, 2, 1),
    Sketcher.Constraint("Coincident", 2, 2, 3, 1),
    Sketcher.Constraint("Coincident", 3, 2, 0, 1),
    Sketcher.Constraint("Vertical", 0),
    Sketcher.Constraint("Horizontal", 1),
    Sketcher.Constraint("Vertical", 2),
    Sketcher.Constraint("Horizontal", 3),
    Sketcher.Constraint("Vertical", 4),
    Sketcher.Constraint("Coincident", 4, 1, 3, 2),
    Sketcher.Constraint("Horizontal", 1, 2, 4, 2),
    Sketcher.Constraint("DistanceY", 0, 2, 0, 1, Q("10 mm")),
    Sketcher.Constraint("DistanceX", 1, 1, 1, 2, Q("0.4 mm")),
    Sketcher.Constraint("DistanceY", -1, 1, 0, 2, Q("28.25 mm")),
    Sketcher.Constraint("DistanceX", -1, 1, 0, 2, Q("0.871557 mm")),
])
revolution12 = body.newObject("PartDesign::Revolution", "Revolution011")
revolution12.Profile = sketch14
revolution12.ReferenceAxis = (sketch14, ["Axis0"])
revolution12.Angle = 360

sketch15 = body.newObject("Sketcher::SketchObject", "Sketch014")
sketch15.AttachmentSupport = (doc.getObject("XY_Plane"), [""])
sketch15.MapMode = "FlatFace"
sketch15.AttachmentOffset = App.Placement(V(0, 0, -10), App.Rotation())
sketch15.addGeometry([
    Part.LineSegment(V(0, 38.25, 0), V(0, 28.25, 0)),
    Part.LineSegment(V(0, 28.25, 0), V(0.4, 28.25, 0)),
    Part.LineSegment(V(0.4, 28.25, 0), V(0.4, 38.25, 0)),
    Part.LineSegment(V(0.4, 38.25, 0), V(0, 38.25, 0)),
], False)
sketch15.addConstraint([
    Sketcher.Constraint("Coincident", 0, 2, 1, 1),
    Sketcher.Constraint("Coincident", 1, 2, 2, 1),
    Sketcher.Constraint("Coincident", 2, 2, 3, 1),
    Sketcher.Constraint("Coincident", 3, 2, 0, 1),
    Sketcher.Constraint("Vertical", 0),
    Sketcher.Constraint("Horizontal", 1),
    Sketcher.Constraint("Vertical", 2),
    Sketcher.Constraint("Horizontal", 3),
    Sketcher.Constraint("PointOnObject", 0, 2, -2),
    Sketcher.Constraint("DistanceY", 0, 2, 0, 1, Q("10 mm")),
    Sketcher.Constraint("DistanceX", 1, 1, 1, 2, Q("0.4 mm")),
    Sketcher.Constraint("DistanceY", -1, 1, 0, 2, Q("28.25 mm")),
])
revolution13 = body.newObject("PartDesign::Revolution", "Revolution012")
revolution13.Profile = sketch15
revolution13.ReferenceAxis = (sketch15, ["V_Axis"])
revolution13.Angle = 360

sketch16 = body.newObject("Sketcher::SketchObject", "Sketch015")
sketch16.AttachmentSupport = (doc.getObject("XY_Plane"), [""])
sketch16.MapMode = "FlatFace"
sketch16.AttachmentOffset = App.Placement(V(0, 0, 9.670984), App.Rotation())
sketch16.addGeometry([
    Part.LineSegment(V(2.54, 38.25, 0), V(2.54, 28.25, 0)),
    Part.LineSegment(V(2.54, 28.25, 0), V(2.94, 28.25, 0)),
    Part.LineSegment(V(2.94, 28.25, 0), V(2.94, 38.25, 0)),
    Part.LineSegment(V(2.94, 38.25, 0), V(2.54, 38.25, 0)),
], False)
sketch16.addGeometry(Part.LineSegment(V(2.54, 38.25, 0), V(2.54, 28.25, 0)), True)
sketch16.addConstraint([
    Sketcher.Constraint("Coincident", 0, 2, 1, 1),
    Sketcher.Constraint("Coincident", 1, 2, 2, 1),
    Sketcher.Constraint("Coincident", 2, 2, 3, 1),
    Sketcher.Constraint("Coincident", 3, 2, 0, 1),
    Sketcher.Constraint("Vertical", 0),
    Sketcher.Constraint("Horizontal", 1),
    Sketcher.Constraint("Vertical", 2),
    Sketcher.Constraint("Horizontal", 3),
    Sketcher.Constraint("Vertical", 4),
    Sketcher.Constraint("Coincident", 4, 1, 3, 2),
    Sketcher.Constraint("Horizontal", 1, 2, 4, 2),
    Sketcher.Constraint("DistanceY", 0, 2, 0, 1, Q("10 mm")),
    Sketcher.Constraint("DistanceX", 1, 1, 1, 2, Q("0.4 mm")),
    Sketcher.Constraint("DistanceY", -1, 1, 0, 2, Q("28.25 mm")),
    Sketcher.Constraint("DistanceX", -1, 1, 0, 2, Q("2.544026 mm")),
])
revolution14 = body.newObject("PartDesign::Revolution", "Revolution013")
revolution14.Profile = sketch16
revolution14.ReferenceAxis = (sketch16, ["Axis0"])
revolution14.Angle = 360

sketch17 = body.newObject("Sketcher::SketchObject", "Sketch016")
sketch17.AttachmentSupport = (doc.getObject("XZ_Plane"), [""])
sketch17.MapMode = "FlatFace"
sketch17.AttachmentOffset = App.Placement(V(0, 0, -2.5), App.Rotation())
sketch17.addGeometry([
    Part.Circle(V(0, 17.4, 0), V(0, 0, 1), 2.7),
    Part.Circle(V(-15.1, -8.7, 0), V(0, 0, 1), 2.7),
    Part.Circle(V(15.1, -8.7, 0), V(0, 0, 1), 2.7),
], False)
sketch17.addConstraint([
    Sketcher.Constraint("Equal", 0, 1),
    Sketcher.Constraint("Equal", 1, 2),
    Sketcher.Constraint("Symmetric", 1, 3, 2, 3, -2),
    Sketcher.Constraint("PointOnObject", 0, 3, -2),
    Sketcher.Constraint("Diameter", 0, Q("5.4 mm")),
    Sketcher.Constraint("DistanceY", -1, 1, 0, 3, Q("17.425 mm")),
    Sketcher.Constraint("DistanceY", 1, 3, -1, 1, Q("8.7125 mm")),
    Sketcher.Constraint("DistanceX", 1, 3, -1, 1, Q("15.090493 mm")),
])
doc.recompute()
hole2 = body.newObject("PartDesign::Hole", "Hole001")
hole2.Profile = sketch17
hole2.ThreadType = "None"
hole2.Diameter = 5.4
hole2.DepthType = "ThroughAll"
hole2.Reversed = True

sketch18 = body.newObject("Sketcher::SketchObject", "Sketch017")
sketch18.AttachmentSupport = (doc.getObject("XZ_Plane"), [""])
sketch18.MapMode = "FlatFace"
sketch18.addGeometry(Part.Circle(V(0, 0, 0), V(0, 0, 1), 4.8), False)
sketch18.addConstraint([
    Sketcher.Constraint("Coincident", 0, 3, -1, 1),
    Sketcher.Constraint("Diameter", 0, Q("9.5 mm")),
])
doc.recompute()
hole3 = body.newObject("PartDesign::Hole", "Hole002")
hole3.Profile = sketch18
hole3.ThreadType = "None"
hole3.Diameter = 9.5
hole3.DepthType = "Dimension"
hole3.Depth = 0.5
hole3.DrillPoint = "Flat"

doc.recompute()
